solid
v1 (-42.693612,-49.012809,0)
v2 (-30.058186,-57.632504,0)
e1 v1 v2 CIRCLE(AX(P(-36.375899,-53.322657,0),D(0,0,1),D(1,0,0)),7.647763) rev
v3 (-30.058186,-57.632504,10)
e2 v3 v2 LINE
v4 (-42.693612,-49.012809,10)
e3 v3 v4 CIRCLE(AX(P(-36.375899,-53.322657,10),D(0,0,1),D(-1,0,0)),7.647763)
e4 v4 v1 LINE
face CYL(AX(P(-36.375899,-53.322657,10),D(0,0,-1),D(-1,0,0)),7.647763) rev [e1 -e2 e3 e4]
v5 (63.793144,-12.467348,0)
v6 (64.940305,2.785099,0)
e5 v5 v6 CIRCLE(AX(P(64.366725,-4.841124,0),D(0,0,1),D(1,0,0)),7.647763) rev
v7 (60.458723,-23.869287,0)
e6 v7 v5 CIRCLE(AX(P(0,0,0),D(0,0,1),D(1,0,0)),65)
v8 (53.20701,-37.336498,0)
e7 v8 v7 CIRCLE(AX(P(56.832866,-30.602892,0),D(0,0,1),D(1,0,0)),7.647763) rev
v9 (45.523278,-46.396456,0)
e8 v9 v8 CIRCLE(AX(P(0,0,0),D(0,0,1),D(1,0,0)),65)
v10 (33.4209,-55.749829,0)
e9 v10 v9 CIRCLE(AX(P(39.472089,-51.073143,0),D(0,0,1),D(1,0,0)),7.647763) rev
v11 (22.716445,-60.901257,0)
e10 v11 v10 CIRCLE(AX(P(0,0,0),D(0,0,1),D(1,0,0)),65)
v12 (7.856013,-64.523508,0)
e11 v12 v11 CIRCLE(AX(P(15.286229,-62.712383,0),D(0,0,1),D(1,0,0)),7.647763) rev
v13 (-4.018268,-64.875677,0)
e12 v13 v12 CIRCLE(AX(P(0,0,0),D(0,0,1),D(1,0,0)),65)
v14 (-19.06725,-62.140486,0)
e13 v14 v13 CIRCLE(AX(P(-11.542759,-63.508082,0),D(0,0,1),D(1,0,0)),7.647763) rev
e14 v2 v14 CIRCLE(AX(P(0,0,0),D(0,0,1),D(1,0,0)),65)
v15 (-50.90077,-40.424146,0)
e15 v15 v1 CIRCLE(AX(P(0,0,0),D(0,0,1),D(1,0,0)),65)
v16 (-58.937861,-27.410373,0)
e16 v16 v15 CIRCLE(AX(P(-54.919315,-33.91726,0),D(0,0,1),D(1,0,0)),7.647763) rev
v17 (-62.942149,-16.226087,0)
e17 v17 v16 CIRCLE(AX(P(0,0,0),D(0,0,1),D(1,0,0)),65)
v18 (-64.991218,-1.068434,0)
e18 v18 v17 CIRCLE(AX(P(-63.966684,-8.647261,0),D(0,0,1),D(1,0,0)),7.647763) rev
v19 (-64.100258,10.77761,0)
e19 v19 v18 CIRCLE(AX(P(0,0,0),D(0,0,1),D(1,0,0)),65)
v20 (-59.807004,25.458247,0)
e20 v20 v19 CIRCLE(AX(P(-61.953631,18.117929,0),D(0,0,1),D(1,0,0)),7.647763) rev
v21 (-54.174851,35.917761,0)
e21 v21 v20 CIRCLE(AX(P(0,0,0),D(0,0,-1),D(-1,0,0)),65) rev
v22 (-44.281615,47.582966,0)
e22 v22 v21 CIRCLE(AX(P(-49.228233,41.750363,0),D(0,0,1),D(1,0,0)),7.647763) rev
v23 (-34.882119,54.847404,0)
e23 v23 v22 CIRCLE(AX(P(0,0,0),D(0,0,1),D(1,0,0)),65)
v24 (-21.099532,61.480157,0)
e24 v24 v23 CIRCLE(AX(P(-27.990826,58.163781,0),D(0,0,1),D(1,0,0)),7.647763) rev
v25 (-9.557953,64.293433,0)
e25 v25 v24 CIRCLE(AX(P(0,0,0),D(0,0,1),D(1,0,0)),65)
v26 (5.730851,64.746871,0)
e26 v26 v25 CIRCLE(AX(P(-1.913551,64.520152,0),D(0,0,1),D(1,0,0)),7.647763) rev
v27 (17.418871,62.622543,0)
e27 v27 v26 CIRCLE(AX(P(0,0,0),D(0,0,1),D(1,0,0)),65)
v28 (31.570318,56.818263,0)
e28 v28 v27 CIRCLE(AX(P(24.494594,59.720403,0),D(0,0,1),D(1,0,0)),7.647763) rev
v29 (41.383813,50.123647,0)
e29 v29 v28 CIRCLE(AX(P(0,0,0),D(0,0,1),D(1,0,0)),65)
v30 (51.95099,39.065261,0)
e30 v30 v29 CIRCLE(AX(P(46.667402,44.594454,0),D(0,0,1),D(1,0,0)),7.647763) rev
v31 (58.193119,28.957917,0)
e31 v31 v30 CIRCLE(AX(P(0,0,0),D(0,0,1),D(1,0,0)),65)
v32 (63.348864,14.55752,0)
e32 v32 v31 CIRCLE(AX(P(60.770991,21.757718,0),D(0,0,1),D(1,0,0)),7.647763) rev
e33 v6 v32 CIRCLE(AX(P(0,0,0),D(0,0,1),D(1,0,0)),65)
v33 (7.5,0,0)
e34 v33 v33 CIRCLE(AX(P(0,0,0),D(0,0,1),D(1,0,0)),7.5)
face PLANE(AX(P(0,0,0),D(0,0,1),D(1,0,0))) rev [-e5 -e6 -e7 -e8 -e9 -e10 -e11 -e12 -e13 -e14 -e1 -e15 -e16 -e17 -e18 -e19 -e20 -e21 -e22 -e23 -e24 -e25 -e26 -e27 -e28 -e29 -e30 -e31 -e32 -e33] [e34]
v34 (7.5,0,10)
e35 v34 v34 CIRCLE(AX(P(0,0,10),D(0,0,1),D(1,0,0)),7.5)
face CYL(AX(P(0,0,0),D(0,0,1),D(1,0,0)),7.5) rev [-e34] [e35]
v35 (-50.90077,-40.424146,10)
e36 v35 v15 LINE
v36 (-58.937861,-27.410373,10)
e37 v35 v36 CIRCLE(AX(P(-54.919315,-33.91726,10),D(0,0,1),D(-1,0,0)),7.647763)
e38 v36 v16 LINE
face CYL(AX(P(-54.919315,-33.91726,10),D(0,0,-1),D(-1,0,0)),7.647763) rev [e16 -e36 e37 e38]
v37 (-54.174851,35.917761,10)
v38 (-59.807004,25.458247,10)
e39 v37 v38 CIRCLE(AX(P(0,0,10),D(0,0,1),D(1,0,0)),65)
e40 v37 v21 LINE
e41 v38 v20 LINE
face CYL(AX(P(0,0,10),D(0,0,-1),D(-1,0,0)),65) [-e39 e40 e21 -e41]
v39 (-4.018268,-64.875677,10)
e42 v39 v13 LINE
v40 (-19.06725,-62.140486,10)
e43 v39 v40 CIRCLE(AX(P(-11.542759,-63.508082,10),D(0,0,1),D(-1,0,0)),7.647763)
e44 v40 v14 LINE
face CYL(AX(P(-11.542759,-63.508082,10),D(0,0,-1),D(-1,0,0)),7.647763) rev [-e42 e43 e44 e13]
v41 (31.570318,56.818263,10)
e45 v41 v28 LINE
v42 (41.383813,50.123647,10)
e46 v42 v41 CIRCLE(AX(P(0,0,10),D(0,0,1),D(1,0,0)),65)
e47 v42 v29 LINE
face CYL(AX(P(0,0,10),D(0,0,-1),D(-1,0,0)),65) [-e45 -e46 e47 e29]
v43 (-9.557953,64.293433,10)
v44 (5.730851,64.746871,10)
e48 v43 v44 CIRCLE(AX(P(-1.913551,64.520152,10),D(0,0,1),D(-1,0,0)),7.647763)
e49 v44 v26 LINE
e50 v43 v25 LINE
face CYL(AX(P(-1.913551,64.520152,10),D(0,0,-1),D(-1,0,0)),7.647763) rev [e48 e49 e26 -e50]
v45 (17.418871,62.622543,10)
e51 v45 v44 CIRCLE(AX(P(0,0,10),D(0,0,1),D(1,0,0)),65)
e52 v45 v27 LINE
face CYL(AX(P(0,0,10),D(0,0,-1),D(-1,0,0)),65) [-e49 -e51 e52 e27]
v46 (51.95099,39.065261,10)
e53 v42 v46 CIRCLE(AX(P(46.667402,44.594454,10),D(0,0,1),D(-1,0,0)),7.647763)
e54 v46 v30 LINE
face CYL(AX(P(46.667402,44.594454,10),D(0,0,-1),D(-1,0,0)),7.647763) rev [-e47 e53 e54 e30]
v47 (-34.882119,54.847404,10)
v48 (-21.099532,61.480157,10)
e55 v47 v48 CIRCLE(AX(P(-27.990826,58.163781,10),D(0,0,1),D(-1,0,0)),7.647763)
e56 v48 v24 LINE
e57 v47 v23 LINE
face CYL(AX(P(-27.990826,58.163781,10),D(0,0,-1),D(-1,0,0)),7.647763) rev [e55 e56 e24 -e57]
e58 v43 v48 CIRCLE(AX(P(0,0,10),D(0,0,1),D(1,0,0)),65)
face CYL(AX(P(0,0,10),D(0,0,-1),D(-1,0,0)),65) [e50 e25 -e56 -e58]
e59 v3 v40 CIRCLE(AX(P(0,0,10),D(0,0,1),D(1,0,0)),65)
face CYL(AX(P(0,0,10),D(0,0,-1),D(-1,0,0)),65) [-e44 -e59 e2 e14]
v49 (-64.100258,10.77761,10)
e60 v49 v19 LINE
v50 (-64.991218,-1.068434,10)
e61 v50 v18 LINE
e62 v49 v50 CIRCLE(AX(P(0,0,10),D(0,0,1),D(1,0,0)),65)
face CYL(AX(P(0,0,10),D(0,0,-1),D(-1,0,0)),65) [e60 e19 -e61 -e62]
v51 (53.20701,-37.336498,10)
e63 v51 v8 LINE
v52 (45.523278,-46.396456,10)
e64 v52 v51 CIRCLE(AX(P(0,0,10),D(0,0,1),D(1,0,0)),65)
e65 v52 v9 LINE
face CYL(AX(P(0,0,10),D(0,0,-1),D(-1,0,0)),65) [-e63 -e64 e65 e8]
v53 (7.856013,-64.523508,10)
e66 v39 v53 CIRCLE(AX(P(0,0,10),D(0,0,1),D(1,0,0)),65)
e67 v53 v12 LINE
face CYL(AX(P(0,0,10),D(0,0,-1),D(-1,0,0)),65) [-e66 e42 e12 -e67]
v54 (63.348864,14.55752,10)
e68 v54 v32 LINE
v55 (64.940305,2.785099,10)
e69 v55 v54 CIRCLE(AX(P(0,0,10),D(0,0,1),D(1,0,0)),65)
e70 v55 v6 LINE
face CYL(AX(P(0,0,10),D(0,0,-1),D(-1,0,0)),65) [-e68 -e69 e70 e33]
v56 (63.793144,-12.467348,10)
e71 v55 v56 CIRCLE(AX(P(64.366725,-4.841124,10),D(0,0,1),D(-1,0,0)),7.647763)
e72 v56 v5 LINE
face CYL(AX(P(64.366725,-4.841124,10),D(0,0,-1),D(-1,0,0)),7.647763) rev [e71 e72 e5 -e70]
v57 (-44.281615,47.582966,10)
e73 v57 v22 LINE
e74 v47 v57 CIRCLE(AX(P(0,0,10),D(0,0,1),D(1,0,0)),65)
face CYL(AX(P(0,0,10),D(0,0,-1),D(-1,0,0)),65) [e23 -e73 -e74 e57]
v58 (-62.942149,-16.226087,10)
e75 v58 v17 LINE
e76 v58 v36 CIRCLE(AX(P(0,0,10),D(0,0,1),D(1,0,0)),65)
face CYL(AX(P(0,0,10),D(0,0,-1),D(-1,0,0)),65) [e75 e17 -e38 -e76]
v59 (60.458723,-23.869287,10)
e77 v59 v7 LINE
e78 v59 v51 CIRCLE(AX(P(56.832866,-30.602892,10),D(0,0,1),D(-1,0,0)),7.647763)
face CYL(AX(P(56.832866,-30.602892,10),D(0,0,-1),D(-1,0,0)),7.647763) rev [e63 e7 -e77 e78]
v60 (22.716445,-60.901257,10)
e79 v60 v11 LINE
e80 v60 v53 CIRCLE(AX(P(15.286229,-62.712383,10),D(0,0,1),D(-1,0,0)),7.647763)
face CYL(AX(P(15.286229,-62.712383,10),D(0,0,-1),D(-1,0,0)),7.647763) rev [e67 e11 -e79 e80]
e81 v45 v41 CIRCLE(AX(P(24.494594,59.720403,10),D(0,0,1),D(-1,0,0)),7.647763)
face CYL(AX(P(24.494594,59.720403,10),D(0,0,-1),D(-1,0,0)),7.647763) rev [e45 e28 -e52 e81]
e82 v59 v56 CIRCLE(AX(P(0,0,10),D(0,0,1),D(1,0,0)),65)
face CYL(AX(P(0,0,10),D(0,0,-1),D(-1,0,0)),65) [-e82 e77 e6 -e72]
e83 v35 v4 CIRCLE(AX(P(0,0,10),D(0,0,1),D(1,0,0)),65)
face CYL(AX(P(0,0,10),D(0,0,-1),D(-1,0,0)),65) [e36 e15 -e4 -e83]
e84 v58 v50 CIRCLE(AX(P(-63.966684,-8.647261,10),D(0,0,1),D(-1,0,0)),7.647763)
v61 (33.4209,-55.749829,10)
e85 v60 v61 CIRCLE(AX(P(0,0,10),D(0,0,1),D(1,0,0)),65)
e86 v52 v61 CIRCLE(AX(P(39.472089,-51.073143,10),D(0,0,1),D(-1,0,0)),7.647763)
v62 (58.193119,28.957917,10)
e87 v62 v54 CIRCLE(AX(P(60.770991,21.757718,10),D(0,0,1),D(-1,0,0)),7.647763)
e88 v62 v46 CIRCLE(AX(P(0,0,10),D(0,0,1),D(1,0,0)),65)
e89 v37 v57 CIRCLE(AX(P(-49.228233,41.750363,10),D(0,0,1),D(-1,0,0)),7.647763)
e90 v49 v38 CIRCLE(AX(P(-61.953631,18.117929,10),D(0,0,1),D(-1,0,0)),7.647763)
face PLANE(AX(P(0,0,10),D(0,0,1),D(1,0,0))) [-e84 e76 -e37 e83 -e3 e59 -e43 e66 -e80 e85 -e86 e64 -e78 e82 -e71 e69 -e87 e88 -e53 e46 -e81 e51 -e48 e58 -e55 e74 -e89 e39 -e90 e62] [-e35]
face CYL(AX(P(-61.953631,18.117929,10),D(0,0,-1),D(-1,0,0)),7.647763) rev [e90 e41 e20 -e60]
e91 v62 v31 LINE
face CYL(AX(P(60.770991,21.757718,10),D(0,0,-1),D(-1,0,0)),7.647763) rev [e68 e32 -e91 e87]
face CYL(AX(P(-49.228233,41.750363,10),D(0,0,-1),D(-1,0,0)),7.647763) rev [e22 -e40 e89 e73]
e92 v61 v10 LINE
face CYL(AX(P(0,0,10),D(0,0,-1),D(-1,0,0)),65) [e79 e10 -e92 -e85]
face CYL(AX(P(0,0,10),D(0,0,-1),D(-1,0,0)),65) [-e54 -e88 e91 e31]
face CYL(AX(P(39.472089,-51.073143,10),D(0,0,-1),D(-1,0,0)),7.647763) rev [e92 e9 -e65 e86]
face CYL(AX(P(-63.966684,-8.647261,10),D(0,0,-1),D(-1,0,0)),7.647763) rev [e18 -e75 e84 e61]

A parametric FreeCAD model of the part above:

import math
import FreeCAD as App
import Part
import Sketcher

V = App.Vector

doc = App.newDocument("Part")
body = doc.addObject("PartDesign::Body", "Body")

# Sketch on XY plane
sketch1 = body.newObject("Sketcher::SketchObject", "Sketch")
sketch1.AttachmentSupport = (doc.getObject("XY_Plane"), [""])
sketch1.MapMode = "FlatFace"
sketch1.addGeometry(Part.Circle(V(0, 0, 0), V(0, 0, 1), 65), False)
sketch1.addConstraint(Sketcher.Constraint("Coincident", 0, 3, -1, 1))
sketch1.addConstraint(Sketcher.Constraint("Diameter", 0, 130.0))
pad1 = body.newObject("PartDesign::Pad", "Pad")
pad1.Profile = sketch1
pad1.Length = 10

# Sketch on XY plane
sketch2 = body.newObject("Sketcher::SketchObject", "Sketch001")
sketch2.AttachmentSupport = (doc.getObject("XY_Plane"), [""])
sketch2.MapMode = "FlatFace"
sketch2.addGeometry(Part.LineSegment(V(84, 84, 0), V(84, -84, 0)), False)
sketch2.addGeometry(Part.LineSegment(V(84, -84, 0), V(-84, -84, 0)), False)
sketch2.addGeometry(Part.LineSegment(V(-84, -84, 0), V(-84, 84, 0)), False)
sketch2.addGeometry(Part.LineSegment(V(-84, 84, 0), V(84, 84, 0)), False)
sketch2.addGeometry(Part.ArcOfCircle(Part.Circle(V(0, 0, 0), V(0, 0, 1), 65), math.radians(74.46), math.radians(84.94)), False)
sketch2.addGeometry(Part.ArcOfCircle(Part.Circle(V(-2, 65, 0), V(0, 0, 1), 8), math.radians(-178), math.radians(2)), False)
sketch2.addGeometry(Part.ArcOfCircle(Part.Circle(V(0, 0, 0), V(0, 0, 1), 65), math.radians(98.46), math.radians(108.94)), False)
sketch2.addGeometry(Part.ArcOfCircle(Part.Circle(V(-28, 58, 0), V(0, 0, 1), 8), math.radians(-154), math.radians(26)), False)
sketch2.addGeometry(Part.ArcOfCircle(Part.Circle(V(0, 0, 0), V(0, 0, 1), 65), math.radians(122.46), math.radians(132.94)), False)
sketch2.addGeometry(Part.ArcOfCircle(Part.Circle(V(-49, 42, 0), V(0, 0, 1), 8), math.radians(-130), math.radians(50)), False)
sketch2.addGeometry(Part.ArcOfCircle(Part.Circle(V(0, 0, 0), V(0, 0, 1), 65), math.radians(146.46), math.radians(156.94)), False)
sketch2.addGeometry(Part.ArcOfCircle(Part.Circle(V(-62, 18, 0), V(0, 0, 1), 8), math.radians(-106), math.radians(74)), False)
sketch2.addGeometry(Part.ArcOfCircle(Part.Circle(V(0, 0, 0), V(0, 0, 1), 65), math.radians(170.46), math.radians(180.94)), False)
sketch2.addGeometry(Part.ArcOfCircle(Part.Circle(V(-64, -9, 0), V(0, 0, 1), 8), math.radians(-82), math.radians(98)), False)
sketch2.addGeometry(Part.ArcOfCircle(Part.Circle(V(0, 0, 0), V(0, 0, 1), 65), math.radians(-165.54), math.radians(-155.06)), False)
sketch2.addGeometry(Part.ArcOfCircle(Part.Circle(V(-55, -34, 0), V(0, 0, 1), 8), math.radians(-58), math.radians(122)), False)
sketch2.addGeometry(Part.ArcOfCircle(Part.Circle(V(0, 0, 0), V(0, 0, 1), 65), math.radians(-141.54), math.radians(-131.06)), False)
sketch2.addGeometry(Part.ArcOfCircle(Part.Circle(V(-36, -53, 0), V(0, 0, 1), 8), math.radians(-34), math.radians(146)), False)
sketch2.addGeometry(Part.ArcOfCircle(Part.Circle(V(0, 0, 0), V(0, 0, 1), 65), math.radians(-117.54), math.radians(-107.06)), False)
sketch2.addGeometry(Part.ArcOfCircle(Part.Circle(V(-12, -64, 0), V(0, 0, 1), 8), math.radians(-10), math.radians(170)), False)
sketch2.addGeometry(Part.ArcOfCircle(Part.Circle(V(0, 0, 0), V(0, 0, 1), 65), math.radians(-93.54), math.radians(-83.06)), False)
sketch2.addGeometry(Part.ArcOfCircle(Part.Circle(V(15, -63, 0), V(0, 0, 1), 8), math.radians(14), math.radians(194)), False)
sketch2.addGeometry(Part.ArcOfCircle(Part.Circle(V(0, 0, 0), V(0, 0, 1), 65), math.radians(-69.54), math.radians(-59.06)), False)
sketch2.addGeometry(Part.ArcOfCircle(Part.Circle(V(39, -51, 0), V(0, 0, 1), 8), math.radians(38), math.radians(218)), False)
sketch2.addGeometry(Part.ArcOfCircle(Part.Circle(V(0, 0, 0), V(0, 0, 1), 65), math.radians(-45.54), math.radians(-35.06)), False)
sketch2.addGeometry(Part.ArcOfCircle(Part.Circle(V(57, -31, 0), V(0, 0, 1), 8), math.radians(62), math.radians(242)), False)
sketch2.addGeometry(Part.ArcOfCircle(Part.Circle(V(0, 0, 0), V(0, 0, 1), 65), math.radians(-21.54), math.radians(-11.06)), False)
sketch2.addGeometry(Part.ArcOfCircle(Part.Circle(V(64, -5, 0), V(0, 0, 1), 8), math.radians(86), math.radians(266)), False)
sketch2.addGeometry(Part.ArcOfCircle(Part.Circle(V(0, 0, 0), V(0, 0, 1), 65), math.radians(2.46), math.radians(12.94)), False)
sketch2.addGeometry(Part.ArcOfCircle(Part.Circle(V(61, 22, 0), V(0, 0, 1), 8), math.radians(110), math.radians(290)), False)
sketch2.addGeometry(Part.ArcOfCircle(Part.Circle(V(0, 0, 0), V(0, 0, 1), 65), math.radians(26.46), math.radians(36.94)), False)
sketch2.addGeometry(Part.ArcOfCircle(Part.Circle(V(47, 45, 0), V(0, 0, 1), 8), math.radians(134), math.radians(314)), False)
sketch2.addGeometry(Part.ArcOfCircle(Part.Circle(V(0, 0, 0), V(0, 0, 1), 65), math.radians(50.46), math.radians(60.94)), False)
sketch2.addGeometry(Part.ArcOfCircle(Part.Circle(V(24, 60, 0), V(0, 0, 1), 8), math.radians(158), math.radians(338)), False)
sketch2.addConstraint(Sketcher.Constraint("Coincident", 0, 2, 1, 1))
sketch2.addConstraint(Sketcher.Constraint("Coincident", 1, 2, 2, 1))
sketch2.addConstraint(Sketcher.Constraint("Coincident", 2, 2, 3, 1))
sketch2.addConstraint(Sketcher.Constraint("Coincident", 3, 2, 0, 1))
sketch2.addConstraint(Sketcher.Constraint("Coincident", 4, 2, 5, 2))
sketch2.addConstraint(Sketcher.Constraint("Coincident", 5, 1, 6, 1))
sketch2.addConstraint(Sketcher.Constraint("Coincident", 6, 2, 7, 2))
sketch2.addConstraint(Sketcher.Constraint("Coincident", 7, 1, 8, 1))
sketch2.addConstraint(Sketcher.Constraint("Coincident", 8, 2, 9, 2))
sketch2.addConstraint(Sketcher.Constraint("Coincident", 9, 1, 10, 1))
sketch2.addConstraint(Sketcher.Constraint("Coincident", 10, 2, 11, 2))
sketch2.addConstraint(Sketcher.Constraint("Coincident", 11, 1, 12, 1))
sketch2.addConstraint(Sketcher.Constraint("Coincident", 12, 2, 13, 2))
sketch2.addConstraint(Sketcher.Constraint("Coincident", 13, 1, 14, 1))
sketch2.addConstraint(Sketcher.Constraint("Coincident", 14, 2, 15, 2))
sketch2.addConstraint(Sketcher.Constraint("Coincident", 15, 1, 16, 1))
sketch2.addConstraint(Sketcher.Constraint("Coincident", 16, 2, 17, 2))
sketch2.addConstraint(Sketcher.Constraint("Coincident", 17, 1, 18, 1))
sketch2.addConstraint(Sketcher.Constraint("Coincident", 18, 2, 19, 2))
sketch2.addConstraint(Sketcher.Constraint("Coincident", 19, 1, 20, 1))
sketch2.addConstraint(Sketcher.Constraint("Coincident", 20, 2, 21, 2))
sketch2.addConstraint(Sketcher.Constraint("Coincident", 21, 1, 22, 1))
sketch2.addConstraint(Sketcher.Constraint("Coincident", 22, 2, 23, 2))
sketch2.addConstraint(Sketcher.Constraint("Coincident", 23, 1, 24, 1))
sketch2.addConstraint(Sketcher.Constraint("Coincident", 24, 2, 25, 2))
sketch2.addConstraint(Sketcher.Constraint("Coincident", 25, 1, 26, 1))
sketch2.addConstraint(Sketcher.Constraint("Coincident", 26, 2, 27, 2))
sketch2.addConstraint(Sketcher.Constraint("Coincident", 27, 1, 28, 1))
sketch2.addConstraint(Sketcher.Constraint("Coincident", 28, 2, 29, 2))
sketch2.addConstraint(Sketcher.Constraint("Coincident", 29, 1, 30, 1))
sketch2.addConstraint(Sketcher.Constraint("Coincident", 30, 2, 31, 2))
sketch2.addConstraint(Sketcher.Constraint("Coincident", 31, 1, 32, 1))
sketch2.addConstraint(Sketcher.Constraint("Coincident", 32, 2, 33, 2))
sketch2.addConstraint(Sketcher.Constraint("Coincident", 33, 1, 4, 1))
sketch2.addConstraint(Sketcher.Constraint("Vertical", 0))
sketch2.addConstraint(Sketcher.Constraint("Horizontal", 1))
sketch2.addConstraint(Sketcher.Constraint("Vertical", 2))
sketch2.addConstraint(Sketcher.Constraint("Horizontal", 3))
sketch2.addConstraint(Sketcher.Constraint("Coincident", 4, 3, -1, 1))
sketch2.addConstraint(Sketcher.Constraint("Coincident", 6, 3, -1, 1))
sketch2.addConstraint(Sketcher.Constraint("Coincident", 8, 3, -1, 1))
sketch2.addConstraint(Sketcher.Constraint("Coincident", 10, 3, -1, 1))
sketch2.addConstraint(Sketcher.Constraint("Coincident", 12, 3, -1, 1))
sketch2.addConstraint(Sketcher.Constraint("Coincident", 14, 3, -1, 1))
sketch2.addConstraint(Sketcher.Constraint("Coincident", 16, 3, -1, 1))
sketch2.addConstraint(Sketcher.Constraint("Coincident", 18, 3, -1, 1))
sketch2.addConstraint(Sketcher.Constraint("Coincident", 20, 3, -1, 1))
sketch2.addConstraint(Sketcher.Constraint("Coincident", 22, 3, -1, 1))
sketch2.addConstraint(Sketcher.Constraint("Coincident", 24, 3, -1, 1))
sketch2.addConstraint(Sketcher.Constraint("Coincident", 26, 3, -1, 1))
sketch2.addConstraint(Sketcher.Constraint("Coincident", 28, 3, -1, 1))
sketch2.addConstraint(Sketcher.Constraint("Coincident", 30, 3, -1, 1))
sketch2.addConstraint(Sketcher.Constraint("Coincident", 32, 3, -1, 1))
sketch2.addConstraint(Sketcher.Constraint("Equal", 4, 6))
sketch2.addConstraint(Sketcher.Constraint("Equal", 5, 7))
sketch2.addConstraint(Sketcher.Constraint("Equal", 6, 8))
sketch2.addConstraint(Sketcher.Constraint("Equal", 7, 9))
sketch2.addConstraint(Sketcher.Constraint("Equal", 8, 10))
sketch2.addConstraint(Sketcher.Constraint("Equal", 9, 11))
sketch2.addConstraint(Sketcher.Constraint("Equal", 10, 12))
sketch2.addConstraint(Sketcher.Constraint("Equal", 11, 13))
sketch2.addConstraint(Sketcher.Constraint("Equal", 12, 14))
sketch2.addConstraint(Sketcher.Constraint("Equal", 13, 15))
sketch2.addConstraint(Sketcher.Constraint("Equal", 14, 16))
sketch2.addConstraint(Sketcher.Constraint("Equal", 15, 17))
sketch2.addConstraint(Sketcher.Constraint("Equal", 16, 18))
sketch2.addConstraint(Sketcher.Constraint("Equal", 17, 19))
sketch2.addConstraint(Sketcher.Constraint("Equal", 18, 20))
sketch2.addConstraint(Sketcher.Constraint("Equal", 19, 21))
sketch2.addConstraint(Sketcher.Constraint("Equal", 20, 22))
sketch2.addConstraint(Sketcher.Constraint("Equal", 21, 23))
sketch2.addConstraint(Sketcher.Constraint("Equal", 22, 24))
sketch2.addConstraint(Sketcher.Constraint("Equal", 23, 25))
sketch2.addConstraint(Sketcher.Constraint("Equal", 24, 26))
sketch2.addConstraint(Sketcher.Constraint("Equal", 25, 27))
sketch2.addConstraint(Sketcher.Constraint("Equal", 26, 28))
sketch2.addConstraint(Sketcher.Constraint("Equal", 27, 29))
sketch2.addConstraint(Sketcher.Constraint("Equal", 28, 30))
sketch2.addConstraint(Sketcher.Constraint("Equal", 29, 31))
sketch2.addConstraint(Sketcher.Constraint("Equal", 30, 32))
sketch2.addConstraint(Sketcher.Constraint("Equal", 31, 33))
sketch2.addConstraint(Sketcher.Constraint("Symmetric", 0, 2, 2, 2, -1, 1))
sketch2.addConstraint(Sketcher.Constraint("Equal", 3, 0))
sketch2.addConstraint(Sketcher.Constraint("Radius", 4, 65.0))
sketch2.addConstraint(Sketcher.Constraint("DistanceX", 1, 2, 1, 1, 168.824))
sketch2.addConstraint(Sketcher.Constraint("Radius", 5, 7.647763))
sketch2.addConstraint(Sketcher.Constraint("DistanceX", 17, 3, -1, 1, 36.375899))
sketch2.addConstraint(Sketcher.Constraint("DistanceX", -1, 1, 31, 3, 46.667402))
sketch2.addConstraint(Sketcher.Constraint("DistanceX", -1, 1, 22, 2, 33.4209))
sketch2.addConstraint(Sketcher.Constraint("DistanceY", 24, 2, -1, 1, 37.336498))
sketch2.addConstraint(Sketcher.Constraint("DistanceY", -1, 1, 27, 1, 2.785099))
sketch2.addConstraint(Sketcher.Constraint("DistanceX", 5, 3, -1, 1, 1.913551))
sketch2.addConstraint(Sketcher.Constraint("DistanceY", -1, 1, 7, 3, 58.163781))
sketch2.addConstraint(Sketcher.Constraint("DistanceX", 11, 3, -1, 1, 61.953631))
sketch2.addConstraint(Sketcher.Constraint("DistanceY", -1, 1, 11, 3, 18.117929))
sketch2.addConstraint(Sketcher.Constraint("DistanceY", 13, 3, -1, 1, 8.647261))
sketch2.addConstraint(Sketcher.Constraint("DistanceY", 15, 3, -1, 1, 33.91726))
sketch2.addConstraint(Sketcher.Constraint("DistanceX", 19, 3, -1, 1, 11.542759))
sketch2.addConstraint(Sketcher.Constraint("DistanceY", 19, 3, -1, 1, 63.508082))
sketch2.addConstraint(Sketcher.Constraint("DistanceX", -1, 1, 21, 3, 15.286229))
sketch2.addConstraint(Sketcher.Constraint("DistanceX", -1, 1, 23, 3, 39.472089))
sketch2.addConstraint(Sketcher.Constraint("DistanceX", -1, 1, 29, 3, 60.770991))
sketch2.addConstraint(Sketcher.Constraint("DistanceY", -1, 1, 29, 3, 21.757718))
sketch2.addConstraint(Sketcher.Constraint("DistanceX", 7, 1, -1, 1, 34.882119))
sketch2.addConstraint(Sketcher.Constraint("DistanceX", 9, 1, -1, 1, 54.174851))
sketch2.addConstraint(Sketcher.Constraint("DistanceX", 13, 1, -1, 1, 62.942149))
sketch2.addConstraint(Sketcher.Constraint("DistanceX", 14, 2, -1, 1, 58.937861))
sketch2.addConstraint(Sketcher.Constraint("DistanceY", 16, 2, -1, 1, 49.012809))
sketch2.addConstraint(Sketcher.Constraint("DistanceX", -1, 1, 30, 2, 51.95099))
sketch2.addConstraint(Sketcher.Constraint("DistanceX", -1, 1, 32, 2, 31.570318))
sketch2.addConstraint(Sketcher.Constraint("DistanceY", -1, 1, 5, 3, 64.520152))
sketch2.addConstraint(Sketcher.Constraint("DistanceX", 9, 3, -1, 1, 49.228233))
sketch2.addConstraint(Sketcher.Constraint("DistanceY", 21, 3, -1, 1, 62.712383))
sketch2.addConstraint(Sketcher.Constraint("DistanceX", -1, 1, 25, 3, 56.832866))
sketch2.addConstraint(Sketcher.Constraint("DistanceX", -1, 1, 27, 3, 64.366725))
sketch2.addConstraint(Sketcher.Constraint("DistanceX", -1, 1, 33, 3, 24.494594))
pocket1 = body.newObject("PartDesign::Pocket", "Pocket")
pocket1.Profile = sketch2
pocket1.Type = "ThroughAll"
pocket1.Midplane = True

# Sketch on XY plane
sketch3 = body.newObject("Sketcher::SketchObject", "Sketch002")
sketch3.AttachmentSupport = (doc.getObject("XY_Plane"), [""])
sketch3.MapMode = "FlatFace"
sketch3.AttachmentOffset = App.Placement(V(0, 0, 10), App.Rotation())
sketch3.addGeometry(Part.Circle(V(0, 0, 0), V(0, 0, 1), 8), False)
sketch3.addConstraint(Sketcher.Constraint("Coincident", 0, 3, -1, 1))
sketch3.addConstraint(Sketcher.Constraint("Diameter", 0, 15.0))
pocket2 = body.newObject("PartDesign::Pocket", "Pocket001")
pocket2.Profile = sketch3
pocket2.Length = 10

doc.recompute()
